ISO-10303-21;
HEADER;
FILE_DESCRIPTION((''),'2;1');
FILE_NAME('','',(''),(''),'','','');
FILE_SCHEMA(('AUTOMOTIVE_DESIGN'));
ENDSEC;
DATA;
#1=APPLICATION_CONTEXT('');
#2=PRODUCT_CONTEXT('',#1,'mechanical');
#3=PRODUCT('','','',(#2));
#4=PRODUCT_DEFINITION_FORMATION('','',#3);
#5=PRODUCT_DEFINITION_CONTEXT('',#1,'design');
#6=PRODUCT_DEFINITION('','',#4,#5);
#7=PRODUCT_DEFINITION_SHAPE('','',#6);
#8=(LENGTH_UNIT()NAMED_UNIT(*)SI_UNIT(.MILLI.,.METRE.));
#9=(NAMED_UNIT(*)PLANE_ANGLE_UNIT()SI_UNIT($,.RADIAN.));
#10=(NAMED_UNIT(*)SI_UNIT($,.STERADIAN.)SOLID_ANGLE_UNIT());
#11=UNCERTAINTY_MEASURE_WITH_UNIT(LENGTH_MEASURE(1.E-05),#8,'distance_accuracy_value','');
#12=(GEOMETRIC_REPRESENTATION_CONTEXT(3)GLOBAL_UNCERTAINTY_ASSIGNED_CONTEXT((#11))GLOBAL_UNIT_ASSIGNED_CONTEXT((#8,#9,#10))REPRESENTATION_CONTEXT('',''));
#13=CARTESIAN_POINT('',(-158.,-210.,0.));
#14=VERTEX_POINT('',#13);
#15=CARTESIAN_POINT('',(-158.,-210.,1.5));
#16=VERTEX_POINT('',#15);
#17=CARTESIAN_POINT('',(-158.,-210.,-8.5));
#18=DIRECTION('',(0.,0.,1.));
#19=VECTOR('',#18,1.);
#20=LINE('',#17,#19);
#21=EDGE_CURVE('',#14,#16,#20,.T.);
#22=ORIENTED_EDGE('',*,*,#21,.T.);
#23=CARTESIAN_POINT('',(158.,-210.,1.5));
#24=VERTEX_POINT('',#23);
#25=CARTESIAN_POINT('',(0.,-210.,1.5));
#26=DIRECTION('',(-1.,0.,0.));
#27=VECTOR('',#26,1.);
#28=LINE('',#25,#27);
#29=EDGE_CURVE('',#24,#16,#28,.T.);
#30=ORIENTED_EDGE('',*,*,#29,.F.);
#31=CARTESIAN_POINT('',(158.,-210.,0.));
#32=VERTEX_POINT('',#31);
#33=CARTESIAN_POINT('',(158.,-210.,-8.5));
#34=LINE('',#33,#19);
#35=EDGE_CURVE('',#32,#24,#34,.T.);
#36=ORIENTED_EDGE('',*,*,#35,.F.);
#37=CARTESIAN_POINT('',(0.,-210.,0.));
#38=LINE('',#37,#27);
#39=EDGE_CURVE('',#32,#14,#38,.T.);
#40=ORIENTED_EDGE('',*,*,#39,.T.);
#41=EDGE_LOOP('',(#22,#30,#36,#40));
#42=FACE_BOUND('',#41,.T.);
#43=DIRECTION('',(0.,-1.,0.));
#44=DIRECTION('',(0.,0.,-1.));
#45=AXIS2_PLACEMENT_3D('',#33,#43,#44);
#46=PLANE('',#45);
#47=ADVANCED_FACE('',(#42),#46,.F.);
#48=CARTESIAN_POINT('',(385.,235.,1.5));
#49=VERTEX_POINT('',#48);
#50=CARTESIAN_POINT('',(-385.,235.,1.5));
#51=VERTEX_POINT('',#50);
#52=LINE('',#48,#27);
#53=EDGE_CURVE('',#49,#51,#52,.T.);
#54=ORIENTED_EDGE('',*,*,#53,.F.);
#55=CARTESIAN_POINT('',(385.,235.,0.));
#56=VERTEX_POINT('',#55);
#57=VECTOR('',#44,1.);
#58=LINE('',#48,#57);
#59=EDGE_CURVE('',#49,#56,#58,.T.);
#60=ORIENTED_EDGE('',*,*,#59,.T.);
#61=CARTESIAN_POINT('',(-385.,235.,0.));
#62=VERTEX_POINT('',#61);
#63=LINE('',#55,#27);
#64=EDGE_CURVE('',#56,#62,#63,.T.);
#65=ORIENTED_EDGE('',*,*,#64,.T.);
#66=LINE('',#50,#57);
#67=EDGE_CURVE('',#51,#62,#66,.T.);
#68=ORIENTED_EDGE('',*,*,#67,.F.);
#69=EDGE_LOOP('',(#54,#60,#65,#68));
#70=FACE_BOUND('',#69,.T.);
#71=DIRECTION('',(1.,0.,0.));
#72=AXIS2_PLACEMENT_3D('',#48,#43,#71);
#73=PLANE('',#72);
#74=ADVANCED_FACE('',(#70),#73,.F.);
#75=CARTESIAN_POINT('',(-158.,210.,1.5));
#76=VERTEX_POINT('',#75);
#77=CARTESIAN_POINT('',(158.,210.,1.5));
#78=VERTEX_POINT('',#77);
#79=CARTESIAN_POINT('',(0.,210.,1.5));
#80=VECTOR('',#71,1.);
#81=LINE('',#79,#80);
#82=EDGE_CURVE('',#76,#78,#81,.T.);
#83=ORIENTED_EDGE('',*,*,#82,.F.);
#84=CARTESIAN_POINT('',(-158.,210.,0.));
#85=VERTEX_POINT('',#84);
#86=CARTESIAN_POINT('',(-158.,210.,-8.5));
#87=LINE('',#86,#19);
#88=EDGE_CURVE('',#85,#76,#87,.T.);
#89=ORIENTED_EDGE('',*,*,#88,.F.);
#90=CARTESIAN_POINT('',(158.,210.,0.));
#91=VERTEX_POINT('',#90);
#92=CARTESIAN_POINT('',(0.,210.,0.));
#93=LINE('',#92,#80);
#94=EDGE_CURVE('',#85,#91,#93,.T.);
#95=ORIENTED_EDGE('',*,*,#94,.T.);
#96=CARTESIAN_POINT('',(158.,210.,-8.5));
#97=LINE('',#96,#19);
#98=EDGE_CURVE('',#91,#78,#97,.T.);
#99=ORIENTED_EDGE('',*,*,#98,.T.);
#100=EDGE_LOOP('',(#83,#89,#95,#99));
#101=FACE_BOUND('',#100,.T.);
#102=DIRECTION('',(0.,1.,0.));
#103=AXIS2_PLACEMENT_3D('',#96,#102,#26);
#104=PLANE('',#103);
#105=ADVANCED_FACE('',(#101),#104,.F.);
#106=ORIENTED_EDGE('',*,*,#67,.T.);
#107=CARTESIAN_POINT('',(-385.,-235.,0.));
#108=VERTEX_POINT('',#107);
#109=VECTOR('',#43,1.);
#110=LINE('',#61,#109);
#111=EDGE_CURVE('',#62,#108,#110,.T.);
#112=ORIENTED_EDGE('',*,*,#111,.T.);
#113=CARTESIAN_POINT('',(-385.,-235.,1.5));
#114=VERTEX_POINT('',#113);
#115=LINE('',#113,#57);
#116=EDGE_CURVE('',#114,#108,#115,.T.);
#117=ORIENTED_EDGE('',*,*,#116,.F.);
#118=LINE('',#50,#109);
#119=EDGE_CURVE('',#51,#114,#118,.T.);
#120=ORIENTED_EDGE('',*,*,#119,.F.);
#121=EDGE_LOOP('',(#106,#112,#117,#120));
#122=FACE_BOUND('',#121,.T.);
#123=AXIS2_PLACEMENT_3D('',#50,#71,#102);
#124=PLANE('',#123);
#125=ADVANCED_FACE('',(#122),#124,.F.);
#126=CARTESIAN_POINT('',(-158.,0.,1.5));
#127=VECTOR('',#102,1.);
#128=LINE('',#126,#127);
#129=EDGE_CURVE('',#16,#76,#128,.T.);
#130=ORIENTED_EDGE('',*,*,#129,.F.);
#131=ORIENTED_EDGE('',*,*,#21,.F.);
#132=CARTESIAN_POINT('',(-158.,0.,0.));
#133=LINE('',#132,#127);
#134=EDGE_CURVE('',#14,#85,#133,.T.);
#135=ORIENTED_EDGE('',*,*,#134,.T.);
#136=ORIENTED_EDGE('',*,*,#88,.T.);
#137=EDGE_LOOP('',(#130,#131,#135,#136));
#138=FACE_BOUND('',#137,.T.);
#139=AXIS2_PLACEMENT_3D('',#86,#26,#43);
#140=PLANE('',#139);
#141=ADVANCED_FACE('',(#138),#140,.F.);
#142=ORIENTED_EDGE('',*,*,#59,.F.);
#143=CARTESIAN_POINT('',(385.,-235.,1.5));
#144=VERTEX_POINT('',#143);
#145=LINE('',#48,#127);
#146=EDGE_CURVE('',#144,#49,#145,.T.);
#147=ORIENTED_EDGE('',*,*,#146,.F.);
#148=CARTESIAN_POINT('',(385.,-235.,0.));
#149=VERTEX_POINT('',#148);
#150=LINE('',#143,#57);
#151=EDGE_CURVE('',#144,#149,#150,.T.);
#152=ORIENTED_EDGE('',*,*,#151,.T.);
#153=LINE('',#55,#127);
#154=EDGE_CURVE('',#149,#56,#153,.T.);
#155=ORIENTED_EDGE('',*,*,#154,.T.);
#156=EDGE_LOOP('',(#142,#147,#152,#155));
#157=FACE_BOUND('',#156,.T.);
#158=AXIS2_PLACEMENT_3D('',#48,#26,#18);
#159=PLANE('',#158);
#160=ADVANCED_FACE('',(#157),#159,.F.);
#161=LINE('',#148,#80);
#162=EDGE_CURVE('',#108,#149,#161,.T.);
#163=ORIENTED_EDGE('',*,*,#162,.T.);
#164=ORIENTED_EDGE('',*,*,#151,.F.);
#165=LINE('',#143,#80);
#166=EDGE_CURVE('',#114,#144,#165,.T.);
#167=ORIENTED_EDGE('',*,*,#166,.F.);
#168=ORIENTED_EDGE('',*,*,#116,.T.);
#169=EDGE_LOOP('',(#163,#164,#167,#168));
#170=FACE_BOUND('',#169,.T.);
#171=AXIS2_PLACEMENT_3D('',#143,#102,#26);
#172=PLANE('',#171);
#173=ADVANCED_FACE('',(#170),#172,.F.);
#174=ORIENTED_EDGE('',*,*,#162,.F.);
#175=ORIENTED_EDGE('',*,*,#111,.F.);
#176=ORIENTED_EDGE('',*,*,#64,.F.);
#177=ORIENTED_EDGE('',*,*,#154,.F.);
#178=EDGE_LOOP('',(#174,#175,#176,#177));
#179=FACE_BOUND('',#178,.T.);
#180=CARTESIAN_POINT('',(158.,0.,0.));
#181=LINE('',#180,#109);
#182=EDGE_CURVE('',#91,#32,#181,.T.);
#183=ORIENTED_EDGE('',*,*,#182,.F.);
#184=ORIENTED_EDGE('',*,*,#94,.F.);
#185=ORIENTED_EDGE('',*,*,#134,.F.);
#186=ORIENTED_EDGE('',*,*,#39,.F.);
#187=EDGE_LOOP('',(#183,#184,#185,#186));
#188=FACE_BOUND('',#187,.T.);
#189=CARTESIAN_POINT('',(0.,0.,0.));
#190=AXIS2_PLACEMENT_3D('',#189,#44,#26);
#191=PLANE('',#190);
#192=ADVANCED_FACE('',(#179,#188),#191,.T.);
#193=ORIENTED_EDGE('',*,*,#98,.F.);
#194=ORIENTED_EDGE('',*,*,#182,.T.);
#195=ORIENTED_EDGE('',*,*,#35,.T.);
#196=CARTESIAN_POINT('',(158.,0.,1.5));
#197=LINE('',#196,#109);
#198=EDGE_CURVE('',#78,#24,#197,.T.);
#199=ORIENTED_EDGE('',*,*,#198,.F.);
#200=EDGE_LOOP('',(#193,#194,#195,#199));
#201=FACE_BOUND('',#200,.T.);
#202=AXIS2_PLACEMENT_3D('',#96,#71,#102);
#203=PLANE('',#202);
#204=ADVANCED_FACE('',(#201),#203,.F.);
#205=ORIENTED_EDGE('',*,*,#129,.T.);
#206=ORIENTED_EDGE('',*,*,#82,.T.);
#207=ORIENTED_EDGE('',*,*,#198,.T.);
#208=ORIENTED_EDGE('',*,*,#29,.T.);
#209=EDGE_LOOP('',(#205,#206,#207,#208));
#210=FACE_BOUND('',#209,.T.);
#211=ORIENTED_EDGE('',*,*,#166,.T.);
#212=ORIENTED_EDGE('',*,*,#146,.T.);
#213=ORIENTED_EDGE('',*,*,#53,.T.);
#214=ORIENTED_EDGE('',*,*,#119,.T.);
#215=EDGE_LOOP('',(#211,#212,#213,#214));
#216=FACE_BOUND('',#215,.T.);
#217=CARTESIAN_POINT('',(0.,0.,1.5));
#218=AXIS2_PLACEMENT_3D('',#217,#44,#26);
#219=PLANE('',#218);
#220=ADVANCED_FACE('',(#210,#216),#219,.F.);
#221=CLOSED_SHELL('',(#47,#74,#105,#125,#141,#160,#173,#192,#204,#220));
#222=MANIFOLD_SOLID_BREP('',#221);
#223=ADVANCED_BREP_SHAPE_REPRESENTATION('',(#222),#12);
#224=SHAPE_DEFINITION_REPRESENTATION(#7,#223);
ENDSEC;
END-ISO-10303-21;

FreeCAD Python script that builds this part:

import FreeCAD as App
import Part
import Sketcher

V = App.Vector
Q = App.Units.Quantity

doc = App.newDocument("Part")
body = doc.addObject("PartDesign::Body", "Body")

# Sketch on XY plane
sketch1 = body.newObject("Sketcher::SketchObject", "Sketch")
sketch1.AttachmentSupport = (doc.getObject("XY_Plane"), [""])
sketch1.MapMode = "FlatFace"
sketch1.addGeometry([
    Part.LineSegment(V(-385, 235, 0), V(-385, -235, 0)),
    Part.LineSegment(V(-385, -235, 0), V(385, -235, 0)),
    Part.LineSegment(V(385, -235, 0), V(385, 235, 0)),
    Part.LineSegment(V(385, 235, 0), V(-385, 235, 0)),
], False)
sketch1.addConstraint([
    Sketcher.Constraint("Coincident", 0, 2, 1, 1),
    Sketcher.Constraint("Coincident", 1, 2, 2, 1),
    Sketcher.Constraint("Coincident", 2, 2, 3, 1),
    Sketcher.Constraint("Coincident", 3, 2, 0, 1),
    Sketcher.Constraint("Vertical", 0),
    Sketcher.Constraint("Horizontal", 1),
    Sketcher.Constraint("Vertical", 2),
    Sketcher.Constraint("Horizontal", 3),
    Sketcher.Constraint("Symmetric", 0, 2, 2, 2, -1, 1),
    Sketcher.Constraint("DistanceX", 1, 1, 1, 2, Q("770 mm")),
    Sketcher.Constraint("DistanceY", 0, 2, 0, 1, Q("470 mm")),
])
pad1 = body.newObject("PartDesign::Pad", "Pad")
pad1.Profile = sketch1
pad1.Length = 1.5

# Sketch on XY plane
sketch2 = body.newObject("Sketcher::SketchObject", "Sketch001")
sketch2.AttachmentSupport = (doc.getObject("XY_Plane"), [""])
sketch2.MapMode = "FlatFace"
sketch2.AttachmentOffset = App.Placement(V(0, 0, 1.5), App.Rotation())
sketch2.addGeometry([
    Part.LineSegment(V(-158, 210, 0), V(-158, -210, 0)),
    Part.LineSegment(V(-158, -210, 0), V(158, -210, 0)),
    Part.LineSegment(V(158, -210, 0), V(158, 210, 0)),
    Part.LineSegment(V(158, 210, 0), V(-158, 210, 0)),
], False)
sketch2.addConstraint([
    Sketcher.Constraint("Coincident", 0, 2, 1, 1),
    Sketcher.Constraint("Coincident", 1, 2, 2, 1),
    Sketcher.Constraint("Coincident", 2, 2, 3, 1),
    Sketcher.Constraint("Coincident", 3, 2, 0, 1),
    Sketcher.Constraint("Vertical", 0),
    Sketcher.Constraint("Horizontal", 1),
    Sketcher.Constraint("Vertical", 2),
    Sketcher.Constraint("Horizontal", 3),
    Sketcher.Constraint("Symmetric", 0, 2, 2, 2, -1, 1),
    Sketcher.Constraint("DistanceX", 1, 1, 1, 2, Q("316 mm")),
    Sketcher.Constraint("DistanceY", 0, 2, 0, 1, Q("420 mm")),
])
pocket1 = body.newObject("PartDesign::Pocket", "Pocket")
pocket1.Profile = sketch2
pocket1.Type = "ThroughAll"
pocket1.Midplane = True

doc.recompute()
